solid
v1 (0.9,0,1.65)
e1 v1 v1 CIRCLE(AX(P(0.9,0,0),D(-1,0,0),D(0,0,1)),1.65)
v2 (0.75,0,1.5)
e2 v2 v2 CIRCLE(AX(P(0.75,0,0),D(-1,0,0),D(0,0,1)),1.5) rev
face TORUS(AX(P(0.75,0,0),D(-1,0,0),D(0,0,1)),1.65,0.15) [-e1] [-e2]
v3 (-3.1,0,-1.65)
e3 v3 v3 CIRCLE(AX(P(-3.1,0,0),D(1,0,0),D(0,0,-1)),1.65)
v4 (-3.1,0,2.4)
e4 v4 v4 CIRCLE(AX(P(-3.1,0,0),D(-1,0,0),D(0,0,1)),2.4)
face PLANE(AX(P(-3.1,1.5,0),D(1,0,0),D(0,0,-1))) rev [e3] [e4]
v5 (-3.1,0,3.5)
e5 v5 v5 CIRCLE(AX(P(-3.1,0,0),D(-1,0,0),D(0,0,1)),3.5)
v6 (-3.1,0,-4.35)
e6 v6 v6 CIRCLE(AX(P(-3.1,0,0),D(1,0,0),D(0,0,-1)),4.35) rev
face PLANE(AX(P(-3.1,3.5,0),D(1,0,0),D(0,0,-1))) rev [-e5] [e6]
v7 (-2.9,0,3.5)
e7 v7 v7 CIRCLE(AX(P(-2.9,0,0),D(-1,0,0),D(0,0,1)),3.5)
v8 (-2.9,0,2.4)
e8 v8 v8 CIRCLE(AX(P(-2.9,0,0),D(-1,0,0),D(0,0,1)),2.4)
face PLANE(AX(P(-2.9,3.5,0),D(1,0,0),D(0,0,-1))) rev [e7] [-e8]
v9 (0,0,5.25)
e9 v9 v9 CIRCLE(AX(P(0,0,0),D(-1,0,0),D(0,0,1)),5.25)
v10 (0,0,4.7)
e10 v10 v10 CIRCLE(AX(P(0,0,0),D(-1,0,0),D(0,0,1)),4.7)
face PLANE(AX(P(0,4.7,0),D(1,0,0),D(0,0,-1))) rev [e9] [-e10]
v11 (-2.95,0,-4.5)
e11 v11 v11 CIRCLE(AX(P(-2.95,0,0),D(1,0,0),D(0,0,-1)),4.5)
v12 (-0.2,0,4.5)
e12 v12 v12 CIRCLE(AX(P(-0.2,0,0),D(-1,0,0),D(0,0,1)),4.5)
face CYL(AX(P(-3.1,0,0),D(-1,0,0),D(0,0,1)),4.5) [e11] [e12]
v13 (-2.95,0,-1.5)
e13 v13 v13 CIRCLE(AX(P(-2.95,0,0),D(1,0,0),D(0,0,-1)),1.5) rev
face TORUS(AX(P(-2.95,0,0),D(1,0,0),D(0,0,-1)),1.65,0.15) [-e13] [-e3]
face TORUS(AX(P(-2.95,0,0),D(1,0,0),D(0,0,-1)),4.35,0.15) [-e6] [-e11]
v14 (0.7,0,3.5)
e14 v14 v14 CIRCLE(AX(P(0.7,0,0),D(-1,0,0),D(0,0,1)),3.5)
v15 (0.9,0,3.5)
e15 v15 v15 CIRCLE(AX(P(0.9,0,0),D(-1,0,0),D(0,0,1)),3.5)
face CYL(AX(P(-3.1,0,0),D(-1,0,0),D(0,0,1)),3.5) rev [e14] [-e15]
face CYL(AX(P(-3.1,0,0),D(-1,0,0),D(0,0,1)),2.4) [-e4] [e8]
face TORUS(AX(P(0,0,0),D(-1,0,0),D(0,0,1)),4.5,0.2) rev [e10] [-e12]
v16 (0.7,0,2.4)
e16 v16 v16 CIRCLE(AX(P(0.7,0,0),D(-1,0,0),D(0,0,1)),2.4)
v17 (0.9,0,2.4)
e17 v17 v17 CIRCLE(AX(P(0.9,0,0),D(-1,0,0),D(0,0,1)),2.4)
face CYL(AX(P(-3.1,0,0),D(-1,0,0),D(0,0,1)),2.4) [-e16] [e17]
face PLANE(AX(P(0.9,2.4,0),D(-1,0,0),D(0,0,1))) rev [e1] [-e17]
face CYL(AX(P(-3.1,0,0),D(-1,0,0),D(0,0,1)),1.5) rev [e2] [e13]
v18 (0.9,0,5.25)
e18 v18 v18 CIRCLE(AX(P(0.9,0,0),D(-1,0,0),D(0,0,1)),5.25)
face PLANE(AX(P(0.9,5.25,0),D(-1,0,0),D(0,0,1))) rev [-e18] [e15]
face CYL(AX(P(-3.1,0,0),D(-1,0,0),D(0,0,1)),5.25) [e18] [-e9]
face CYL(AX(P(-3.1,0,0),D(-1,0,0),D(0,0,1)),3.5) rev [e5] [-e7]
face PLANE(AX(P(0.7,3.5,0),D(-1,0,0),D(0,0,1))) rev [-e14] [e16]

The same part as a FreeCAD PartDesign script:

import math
import FreeCAD as App
import Part
import Sketcher
Q = App.Units.Quantity


def edges_at(feature, points):
    """Names of the edges that pass closest to the given points."""
    edges = feature.Shape.Edges
    near = lambda p: min(range(len(edges)), key=lambda i: edges[i].distToShape(Part.Vertex(*p))[0])
    return sorted({f"Edge{near(p) + 1}" for p in points})

doc = App.newDocument("Part")
body = doc.addObject("PartDesign::Body", "Body")

# Sketch on XY plane
sketch1 = body.newObject("Sketcher::SketchObject", "Sketch")
sketch1.AttachmentSupport = (doc.getObject("XY_Plane"), [""])
sketch1.MapMode = "FlatFace"
sketch1.addGeometry([
    Part.LineSegment(App.Vector(0, 5.25, 0), App.Vector(0, 4.7, 0)),  # 0
    Part.ArcOfCircle(Part.Circle(App.Vector(0, 4.5, 0), App.Vector(0, 0, 1), 0.2), math.radians(180), math.radians(450)),  # 1
    Part.LineSegment(App.Vector(-0.2, 4.5, 0), App.Vector(-3.1, 4.5, 0)),  # 2
    Part.LineSegment(App.Vector(-3.1, 4.5, 0), App.Vector(-3.1, 3.5, 0)),  # 3
    Part.LineSegment(App.Vector(-3.1, 3.5, 0), App.Vector(-2.9, 3.5, 0)),  # 4
    Part.LineSegment(App.Vector(-2.9, 3.5, 0), App.Vector(-2.9, 2.4, 0)),  # 5
    Part.LineSegment(App.Vector(-2.9, 2.4, 0), App.Vector(-3.1, 2.4, 0)),  # 6
    Part.LineSegment(App.Vector(-3.1, 2.4, 0), App.Vector(-3.1, 1.5, 0)),  # 7
    Part.LineSegment(App.Vector(-3.1, 1.5, 0), App.Vector(0.9, 1.5, 0)),  # 8
    Part.LineSegment(App.Vector(0.9, 1.5, 0), App.Vector(0.9, 2.4, 0)),  # 9
    Part.LineSegment(App.Vector(0.9, 2.4, 0), App.Vector(0.7, 2.4, 0)),  # 10
    Part.LineSegment(App.Vector(0.7, 2.4, 0), App.Vector(0.7, 3.5, 0)),  # 11
    Part.LineSegment(App.Vector(0.7, 3.5, 0), App.Vector(0.9, 3.5, 0)),  # 12
    Part.LineSegment(App.Vector(0.9, 3.5, 0), App.Vector(0.9, 5.25, 0)),  # 13
    Part.LineSegment(App.Vector(0.9, 5.25, 0), App.Vector(0, 5.25, 0)),  # 14
], False)
sketch1.addConstraint([
    Sketcher.Constraint("Coincident", 0, 2, 1, 2),
    Sketcher.Constraint("Coincident", 1, 1, 2, 1),
    Sketcher.Constraint("Coincident", 2, 2, 3, 1),
    Sketcher.Constraint("Coincident", 3, 2, 4, 1),
    Sketcher.Constraint("Coincident", 4, 2, 5, 1),
    Sketcher.Constraint("Coincident", 5, 2, 6, 1),
    Sketcher.Constraint("Coincident", 6, 2, 7, 1),
    Sketcher.Constraint("Coincident", 7, 2, 8, 1),
    Sketcher.Constraint("Coincident", 8, 2, 9, 1),
    Sketcher.Constraint("Coincident", 9, 2, 10, 1),
    Sketcher.Constraint("Coincident", 10, 2, 11, 1),
    Sketcher.Constraint("Coincident", 11, 2, 12, 1),
    Sketcher.Constraint("Coincident", 12, 2, 13, 1),
    Sketcher.Constraint("Coincident", 13, 2, 14, 1),
    Sketcher.Constraint("Coincident", 14, 2, 0, 1),
    Sketcher.Constraint("Vertical", 0),
    Sketcher.Constraint("Horizontal", 2),
    Sketcher.Constraint("Vertical", 3),
    Sketcher.Constraint("Horizontal", 4),
    Sketcher.Constraint("Vertical", 5),
    Sketcher.Constraint("Horizontal", 6),
    Sketcher.Constraint("Vertical", 7),
    Sketcher.Constraint("Horizontal", 8),
    Sketcher.Constraint("Vertical", 9),
    Sketcher.Constraint("Horizontal", 10),
    Sketcher.Constraint("Vertical", 11),
    Sketcher.Constraint("Horizontal", 12),
    Sketcher.Constraint("Vertical", 13),
    Sketcher.Constraint("Horizontal", 14),
    Sketcher.Constraint("PointOnObject", 1, 3, -2),
    Sketcher.Constraint("PointOnObject", 0, 2, -2),
    Sketcher.Constraint("Horizontal", 6, 2, 9, 2),
    Sketcher.Constraint("Horizontal", 4, 2, 11, 2),
    Sketcher.Constraint("Vertical", 3, 2, 6, 2),
    Sketcher.Constraint("Vertical", 9, 2, 12, 2),
    Sketcher.Constraint("Equal", 6, 10),
    Sketcher.Constraint("Equal", 14, 7),
    Sketcher.Constraint("Radius", 1, Q("0.2 mm")),
    Sketcher.Constraint("DistanceX", 8, 1, 8, 2, Q("4 mm")),
    Sketcher.Constraint("DistanceY", 3, 2, 3, 1, Q("1 mm")),
    Sketcher.Constraint("DistanceX", 2, 2, 2, 1, Q("2.9 mm")),
    Sketcher.Constraint("DistanceX", 4, 1, 4, 2, Q("0.2 mm")),
    Sketcher.Constraint("DistanceY", 5, 2, 5, 1, Q("1.1 mm")),
    Sketcher.Constraint("DistanceY", 3, 2, 1, 3, Q("1 mm")),
    Sketcher.Constraint("DistanceY", 0, 2, 0, 1, Q("0.55 mm")),
    Sketcher.Constraint("DistanceY", -1, 1, 1, 3, Q("4.5 mm")),
])
revolution = body.newObject("PartDesign::Revolution", "Revolution")
revolution.Profile = sketch1
revolution.ReferenceAxis = (sketch1, ["H_Axis"])
revolution.Angle = 360
doc.recompute()

fillet = body.newObject("PartDesign::Fillet", "Fillet")
fillet.Base = (revolution, edges_at(revolution, [(0.9, -1.5, 0), (-3.1, -1.5, 0), (-3.1, -4.5, 0)]))
fillet.Radius = 0.15

doc.recompute()
